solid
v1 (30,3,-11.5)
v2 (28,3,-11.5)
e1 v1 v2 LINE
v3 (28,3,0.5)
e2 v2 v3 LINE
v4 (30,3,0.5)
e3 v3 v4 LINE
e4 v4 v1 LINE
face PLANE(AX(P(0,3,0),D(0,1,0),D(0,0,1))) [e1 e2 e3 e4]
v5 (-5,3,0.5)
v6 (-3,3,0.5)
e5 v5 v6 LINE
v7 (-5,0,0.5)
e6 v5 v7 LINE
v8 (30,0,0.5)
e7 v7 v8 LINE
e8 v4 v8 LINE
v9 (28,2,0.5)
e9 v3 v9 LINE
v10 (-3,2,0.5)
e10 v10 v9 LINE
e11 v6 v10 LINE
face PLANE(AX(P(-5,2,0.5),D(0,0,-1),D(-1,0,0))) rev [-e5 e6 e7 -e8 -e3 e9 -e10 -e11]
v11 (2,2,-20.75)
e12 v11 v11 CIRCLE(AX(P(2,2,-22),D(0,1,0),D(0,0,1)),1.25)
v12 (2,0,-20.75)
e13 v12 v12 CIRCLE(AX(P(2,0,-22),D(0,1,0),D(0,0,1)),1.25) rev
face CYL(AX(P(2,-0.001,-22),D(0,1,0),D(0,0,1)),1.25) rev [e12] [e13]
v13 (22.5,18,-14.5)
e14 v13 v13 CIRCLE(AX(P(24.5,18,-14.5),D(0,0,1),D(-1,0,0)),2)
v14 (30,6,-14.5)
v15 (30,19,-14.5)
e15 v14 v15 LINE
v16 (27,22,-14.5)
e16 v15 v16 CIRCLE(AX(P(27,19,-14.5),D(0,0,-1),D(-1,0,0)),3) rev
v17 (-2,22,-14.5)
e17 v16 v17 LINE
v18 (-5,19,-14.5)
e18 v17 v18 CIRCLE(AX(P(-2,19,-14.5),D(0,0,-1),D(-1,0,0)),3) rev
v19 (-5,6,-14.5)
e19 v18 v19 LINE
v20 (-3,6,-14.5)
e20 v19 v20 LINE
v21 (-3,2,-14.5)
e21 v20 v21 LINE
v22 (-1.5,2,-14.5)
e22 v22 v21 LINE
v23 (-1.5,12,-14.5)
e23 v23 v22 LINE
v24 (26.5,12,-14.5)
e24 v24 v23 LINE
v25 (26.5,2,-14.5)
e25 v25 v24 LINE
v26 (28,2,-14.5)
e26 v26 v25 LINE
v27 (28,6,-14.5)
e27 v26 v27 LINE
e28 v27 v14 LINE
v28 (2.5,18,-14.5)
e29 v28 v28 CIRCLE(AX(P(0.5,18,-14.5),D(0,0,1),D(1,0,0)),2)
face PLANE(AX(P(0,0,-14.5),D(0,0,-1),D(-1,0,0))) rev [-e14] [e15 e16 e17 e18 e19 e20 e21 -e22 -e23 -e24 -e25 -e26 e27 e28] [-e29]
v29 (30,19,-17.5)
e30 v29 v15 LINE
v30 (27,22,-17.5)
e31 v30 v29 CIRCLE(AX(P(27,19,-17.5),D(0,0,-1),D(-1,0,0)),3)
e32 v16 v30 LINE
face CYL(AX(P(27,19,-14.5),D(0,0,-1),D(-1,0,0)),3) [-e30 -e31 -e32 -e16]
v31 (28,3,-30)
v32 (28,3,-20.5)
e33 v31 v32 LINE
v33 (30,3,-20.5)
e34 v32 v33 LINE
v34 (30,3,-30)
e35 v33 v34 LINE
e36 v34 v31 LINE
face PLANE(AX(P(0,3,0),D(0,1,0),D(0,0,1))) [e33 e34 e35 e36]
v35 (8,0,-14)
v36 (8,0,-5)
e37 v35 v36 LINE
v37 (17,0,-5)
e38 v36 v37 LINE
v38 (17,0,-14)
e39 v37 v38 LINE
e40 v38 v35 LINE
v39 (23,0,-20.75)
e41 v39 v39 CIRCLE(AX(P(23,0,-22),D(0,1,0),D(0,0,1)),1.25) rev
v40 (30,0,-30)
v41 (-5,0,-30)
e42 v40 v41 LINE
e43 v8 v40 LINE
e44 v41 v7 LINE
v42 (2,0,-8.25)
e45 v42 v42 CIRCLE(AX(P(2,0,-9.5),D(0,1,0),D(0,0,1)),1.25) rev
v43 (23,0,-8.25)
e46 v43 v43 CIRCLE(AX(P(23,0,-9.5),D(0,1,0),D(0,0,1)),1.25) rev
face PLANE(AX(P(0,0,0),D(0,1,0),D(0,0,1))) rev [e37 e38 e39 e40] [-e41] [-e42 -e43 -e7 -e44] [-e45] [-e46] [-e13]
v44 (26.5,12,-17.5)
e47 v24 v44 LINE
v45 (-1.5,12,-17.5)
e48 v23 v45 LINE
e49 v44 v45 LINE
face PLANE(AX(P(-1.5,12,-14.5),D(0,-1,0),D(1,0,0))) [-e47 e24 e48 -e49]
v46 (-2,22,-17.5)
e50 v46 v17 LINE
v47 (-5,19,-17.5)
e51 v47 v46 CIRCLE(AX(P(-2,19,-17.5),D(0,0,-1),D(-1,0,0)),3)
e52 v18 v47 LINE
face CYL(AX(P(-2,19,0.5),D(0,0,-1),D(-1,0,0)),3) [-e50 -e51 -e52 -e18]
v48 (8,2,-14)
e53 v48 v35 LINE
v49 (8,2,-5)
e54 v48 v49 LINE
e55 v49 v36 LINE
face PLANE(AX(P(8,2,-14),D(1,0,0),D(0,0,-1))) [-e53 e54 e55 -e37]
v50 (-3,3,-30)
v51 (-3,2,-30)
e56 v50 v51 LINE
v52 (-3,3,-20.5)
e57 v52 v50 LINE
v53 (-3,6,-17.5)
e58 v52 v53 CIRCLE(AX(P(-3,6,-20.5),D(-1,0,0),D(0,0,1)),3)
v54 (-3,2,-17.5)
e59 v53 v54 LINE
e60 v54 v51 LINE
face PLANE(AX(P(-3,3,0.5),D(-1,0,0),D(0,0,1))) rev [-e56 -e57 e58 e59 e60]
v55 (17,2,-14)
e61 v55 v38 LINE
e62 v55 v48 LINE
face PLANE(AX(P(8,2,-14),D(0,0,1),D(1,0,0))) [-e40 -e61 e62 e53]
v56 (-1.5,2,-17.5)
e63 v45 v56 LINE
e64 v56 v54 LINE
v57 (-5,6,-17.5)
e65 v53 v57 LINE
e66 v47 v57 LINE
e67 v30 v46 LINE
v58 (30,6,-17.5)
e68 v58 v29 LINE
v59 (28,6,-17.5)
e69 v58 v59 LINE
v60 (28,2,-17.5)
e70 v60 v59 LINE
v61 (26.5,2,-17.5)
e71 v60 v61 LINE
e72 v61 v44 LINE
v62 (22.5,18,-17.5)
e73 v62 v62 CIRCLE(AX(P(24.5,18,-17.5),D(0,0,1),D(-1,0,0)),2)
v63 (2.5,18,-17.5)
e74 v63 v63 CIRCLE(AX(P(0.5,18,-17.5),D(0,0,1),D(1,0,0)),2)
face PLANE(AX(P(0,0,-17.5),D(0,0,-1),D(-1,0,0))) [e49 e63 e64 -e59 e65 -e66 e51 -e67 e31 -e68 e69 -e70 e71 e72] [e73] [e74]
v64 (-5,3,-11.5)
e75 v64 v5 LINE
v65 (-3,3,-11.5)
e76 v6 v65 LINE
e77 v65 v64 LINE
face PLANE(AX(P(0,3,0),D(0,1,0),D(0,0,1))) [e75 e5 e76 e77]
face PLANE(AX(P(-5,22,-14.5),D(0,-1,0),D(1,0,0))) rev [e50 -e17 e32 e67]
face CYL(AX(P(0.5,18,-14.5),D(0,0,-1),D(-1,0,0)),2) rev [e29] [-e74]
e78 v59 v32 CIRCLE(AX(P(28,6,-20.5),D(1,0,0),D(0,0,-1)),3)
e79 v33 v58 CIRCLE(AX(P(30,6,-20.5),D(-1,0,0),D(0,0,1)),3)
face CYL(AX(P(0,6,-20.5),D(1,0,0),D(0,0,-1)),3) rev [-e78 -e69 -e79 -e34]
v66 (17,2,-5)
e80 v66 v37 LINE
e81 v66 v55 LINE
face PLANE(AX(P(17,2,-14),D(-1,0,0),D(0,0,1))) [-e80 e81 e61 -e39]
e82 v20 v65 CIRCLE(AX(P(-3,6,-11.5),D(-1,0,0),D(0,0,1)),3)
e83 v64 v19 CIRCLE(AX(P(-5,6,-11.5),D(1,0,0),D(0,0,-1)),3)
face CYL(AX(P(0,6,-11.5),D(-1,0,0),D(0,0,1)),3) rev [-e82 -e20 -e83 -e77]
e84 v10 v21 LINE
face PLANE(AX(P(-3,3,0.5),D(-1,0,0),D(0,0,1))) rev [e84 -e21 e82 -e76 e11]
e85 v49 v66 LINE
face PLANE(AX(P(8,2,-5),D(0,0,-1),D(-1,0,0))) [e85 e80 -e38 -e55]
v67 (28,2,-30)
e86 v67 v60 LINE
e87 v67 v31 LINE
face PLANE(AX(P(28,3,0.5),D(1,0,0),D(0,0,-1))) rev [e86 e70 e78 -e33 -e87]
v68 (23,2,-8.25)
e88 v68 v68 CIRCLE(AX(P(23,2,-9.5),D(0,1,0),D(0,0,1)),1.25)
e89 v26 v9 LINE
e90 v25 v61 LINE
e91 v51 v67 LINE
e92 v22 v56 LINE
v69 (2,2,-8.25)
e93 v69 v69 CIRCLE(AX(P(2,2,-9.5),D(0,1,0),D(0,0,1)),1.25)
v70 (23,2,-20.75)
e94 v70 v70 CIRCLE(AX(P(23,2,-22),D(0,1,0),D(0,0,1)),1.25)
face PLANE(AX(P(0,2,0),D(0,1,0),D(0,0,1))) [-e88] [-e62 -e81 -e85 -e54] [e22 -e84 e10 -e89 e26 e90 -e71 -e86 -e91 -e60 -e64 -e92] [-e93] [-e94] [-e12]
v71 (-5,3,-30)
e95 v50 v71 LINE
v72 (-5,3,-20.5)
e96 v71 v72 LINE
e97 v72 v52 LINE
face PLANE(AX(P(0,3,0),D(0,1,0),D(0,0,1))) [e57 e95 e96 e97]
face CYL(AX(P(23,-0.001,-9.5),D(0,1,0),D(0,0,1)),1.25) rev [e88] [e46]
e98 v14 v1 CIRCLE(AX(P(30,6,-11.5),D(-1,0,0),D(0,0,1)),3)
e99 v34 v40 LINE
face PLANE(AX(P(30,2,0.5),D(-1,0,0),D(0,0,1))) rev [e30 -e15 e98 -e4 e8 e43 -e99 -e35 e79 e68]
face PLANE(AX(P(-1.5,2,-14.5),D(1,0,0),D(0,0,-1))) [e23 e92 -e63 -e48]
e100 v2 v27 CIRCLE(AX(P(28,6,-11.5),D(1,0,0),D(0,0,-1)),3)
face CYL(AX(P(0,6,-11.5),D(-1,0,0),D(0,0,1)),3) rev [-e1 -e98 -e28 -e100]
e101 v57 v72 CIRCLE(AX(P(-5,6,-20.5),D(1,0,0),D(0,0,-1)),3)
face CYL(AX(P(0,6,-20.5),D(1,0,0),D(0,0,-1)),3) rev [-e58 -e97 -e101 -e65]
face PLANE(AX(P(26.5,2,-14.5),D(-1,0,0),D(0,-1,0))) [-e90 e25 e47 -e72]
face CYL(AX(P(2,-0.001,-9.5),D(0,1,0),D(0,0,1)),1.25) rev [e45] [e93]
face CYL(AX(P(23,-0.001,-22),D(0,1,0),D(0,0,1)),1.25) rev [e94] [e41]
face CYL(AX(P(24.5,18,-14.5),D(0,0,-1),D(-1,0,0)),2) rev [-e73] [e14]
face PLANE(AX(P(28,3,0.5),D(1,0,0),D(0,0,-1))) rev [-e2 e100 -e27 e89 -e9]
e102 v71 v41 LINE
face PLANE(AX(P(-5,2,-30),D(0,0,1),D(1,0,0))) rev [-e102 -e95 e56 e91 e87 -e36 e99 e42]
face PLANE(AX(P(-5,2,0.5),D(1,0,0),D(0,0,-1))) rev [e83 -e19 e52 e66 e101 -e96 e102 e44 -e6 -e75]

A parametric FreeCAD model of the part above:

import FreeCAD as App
import Part
import Sketcher

V = App.Vector


def edges_at(feature, points):
    """Names of the edges that pass closest to the given points."""
    edges = feature.Shape.Edges
    near = lambda p: min(range(len(edges)), key=lambda i: edges[i].distToShape(Part.Vertex(*p))[0])
    return sorted({f"Edge{near(p) + 1}" for p in points})


def add_polygon(sketch, points):
    """Adds a closed chain of lines whose ends are joined by coincident constraints."""
    first, n = sketch.GeometryCount, len(points)
    for a, b in zip(points, points[1:] + points[:1]):
        sketch.addGeometry(Part.LineSegment(App.Vector(*a, 0), App.Vector(*b, 0)), False)
    for i in range(n):
        sketch.addConstraint(Sketcher.Constraint("Coincident", first + i, 2, first + (i + 1) % n, 1))

doc = App.newDocument("Part")
body = doc.addObject("PartDesign::Body", "Body")

# Sketch on XZ plane
sketch1 = body.newObject("Sketcher::SketchObject", "Sketch")
sketch1.AttachmentSupport = (doc.getObject("XZ_Plane"), [""])
sketch1.MapMode = "FlatFace"
add_polygon(sketch1, [(-5, -30), (-5, 0.5), (30, 0.5), (30, -30)])  # lines 0-3
add_polygon(sketch1, [(17, -5), (8, -5), (8, -14), (17, -14)])  # lines 4-7
sketch1.addConstraint([
    Sketcher.Constraint("Vertical", 0),
    Sketcher.Constraint("Horizontal", 1),
    Sketcher.Constraint("Vertical", 2),
    Sketcher.Constraint("Horizontal", 3),
    Sketcher.Constraint("Horizontal", 4),
    Sketcher.Constraint("Vertical", 5),
    Sketcher.Constraint("Horizontal", 6),
    Sketcher.Constraint("Vertical", 7),
    Sketcher.Constraint("Equal", 6, 5),
    Sketcher.Constraint("DistanceX", 1, 1, 1, 2, 35.0),
    Sketcher.Constraint("DistanceX", 4, 2, 4, 1, 9.0),
    Sketcher.Constraint("DistanceY", 0, 1, 0, 2, 30.5),
    Sketcher.Constraint("DistanceX", 0, 2, -1, 1, 5.0),
    Sketcher.Constraint("DistanceY", 2, 2, -1, 1, 30.0),
    Sketcher.Constraint("DistanceX", -1, 1, 4, 2, 8.0),
    Sketcher.Constraint("DistanceY", 4, 2, -1, 1, 5.0),
])
pad1 = body.newObject("PartDesign::Pad", "Pad")
pad1.Profile = sketch1
pad1.Length = 2
pad1.Reversed = True

# Sketch on XZ plane
sketch2 = body.newObject("Sketcher::SketchObject", "Sketch001")
sketch2.AttachmentSupport = (doc.getObject("XZ_Plane"), [""])
sketch2.MapMode = "FlatFace"
sketch2.AttachmentOffset = App.Placement(V(0, 0, -2), App.Rotation())
add_polygon(sketch2, [(28, -28), (28, 0.5), (30, 0.5), (30, -30), (-5, -30), (-5, 0.5), (-3, 0.5), (-3, -28)])  # lines 0-7
sketch2.addConstraint([
    Sketcher.Constraint("Vertical", 0),
    Sketcher.Constraint("Horizontal", 1),
    Sketcher.Constraint("Vertical", 2),
    Sketcher.Constraint("Horizontal", 3),
    Sketcher.Constraint("Vertical", 4),
    Sketcher.Constraint("Horizontal", 5),
    Sketcher.Constraint("Vertical", 6),
    Sketcher.Constraint("Horizontal", 7),
    Sketcher.Constraint("Horizontal", 1, 2, 4, 2),
    Sketcher.Constraint("Equal", 1, 5),
    Sketcher.Constraint("DistanceX", 1, 1, 1, 2, 2.0),
    Sketcher.Constraint("DistanceX", 3, 2, 3, 1, 35.0),
    Sketcher.Constraint("DistanceY", 0, 1, 0, 2, 28.5),
    Sketcher.Constraint("DistanceY", 2, 2, 2, 1, 30.5),
    Sketcher.Constraint("DistanceX", -1, 1, 0, 2, 28.0),
    Sketcher.Constraint("DistanceY", 2, 2, -1, 1, 30.0),
])
pad2 = body.newObject("PartDesign::Pad", "Pad001")
pad2.Profile = sketch2
pad2.Length = 1
pad2.Reversed = True

# Sketch on XZ plane
sketch3 = body.newObject("Sketcher::SketchObject", "Sketch002")
sketch3.AttachmentSupport = (doc.getObject("XZ_Plane"), [""])
sketch3.MapMode = "FlatFace"
sketch3.AttachmentOffset = App.Placement(V(0, 0, -2), App.Rotation())
sketch3.addGeometry(Part.Circle(V(2, -22, 0), V(0, 0, 1), 1.25), False)
sketch3.addConstraint([
    Sketcher.Constraint("Diameter", 0, 2.5),
    Sketcher.Constraint("DistanceX", -1, 1, 0, 3, 2.0),
    Sketcher.Constraint("DistanceY", 0, 3, -1, 1, 22.0),
])
pocket1 = body.newObject("PartDesign::Pocket", "Pocket")
pocket1.Profile = sketch3
pocket1.Type = "UpToFirst"
pocket1.Reversed = True

# Sketch on XZ plane
sketch4 = body.newObject("Sketcher::SketchObject", "Sketch003")
sketch4.AttachmentSupport = (doc.getObject("XZ_Plane"), [""])
sketch4.MapMode = "FlatFace"
sketch4.AttachmentOffset = App.Placement(V(0, 0, -2), App.Rotation())
sketch4.addGeometry(Part.Circle(V(2, -9.5, 0), V(0, 0, 1), 1.25), False)
sketch4.addConstraint([
    Sketcher.Constraint("Diameter", 0, 2.5),
    Sketcher.Constraint("DistanceX", -1, 1, 0, 3, 2.0),
    Sketcher.Constraint("DistanceY", 0, 3, -1, 1, 9.5),
])
pocket2 = body.newObject("PartDesign::Pocket", "Pocket001")
pocket2.Profile = sketch4
pocket2.Type = "UpToFirst"
pocket2.Reversed = True

# Sketch on XZ plane
sketch5 = body.newObject("Sketcher::SketchObject", "Sketch004")
sketch5.AttachmentSupport = (doc.getObject("XZ_Plane"), [""])
sketch5.MapMode = "FlatFace"
sketch5.AttachmentOffset = App.Placement(V(0, 0, -2), App.Rotation())
sketch5.addGeometry(Part.Circle(V(23, -9.5, 0), V(0, 0, 1), 1.25), False)
sketch5.addConstraint([
    Sketcher.Constraint("Diameter", 0, 2.5),
    Sketcher.Constraint("DistanceX", -1, 1, 0, 3, 23.0),
    Sketcher.Constraint("DistanceY", 0, 3, -1, 1, 9.5),
])
pocket3 = body.newObject("PartDesign::Pocket", "Pocket002")
pocket3.Profile = sketch5
pocket3.Type = "UpToFirst"
pocket3.Reversed = True

# Sketch on XZ plane
sketch6 = body.newObject("Sketcher::SketchObject", "Sketch005")
sketch6.AttachmentSupport = (doc.getObject("XZ_Plane"), [""])
sketch6.MapMode = "FlatFace"
sketch6.AttachmentOffset = App.Placement(V(0, 0, -2), App.Rotation())
sketch6.addGeometry(Part.Circle(V(23, -22, 0), V(0, 0, 1), 1.25), False)
sketch6.addConstraint([
    Sketcher.Constraint("Diameter", 0, 2.5),
    Sketcher.Constraint("DistanceX", -1, 1, 0, 3, 23.0),
    Sketcher.Constraint("DistanceY", 0, 3, -1, 1, 22.0),
])
pocket4 = body.newObject("PartDesign::Pocket", "Pocket003")
pocket4.Profile = sketch6
pocket4.Type = "UpToFirst"
pocket4.Reversed = True

# Sketch on XY plane
sketch7 = body.newObject("Sketcher::SketchObject", "Sketch006")
sketch7.AttachmentSupport = (doc.getObject("XY_Plane"), [""])
sketch7.MapMode = "FlatFace"
sketch7.AttachmentOffset = App.Placement(V(0, 0, -17.5), App.Rotation())
add_polygon(sketch7, [(-5, 22), (-5, 0), (30, 0), (30, 22)])  # lines 0-3
add_polygon(sketch7, [(26.5, 2), (-1.5, 2), (-1.5, 12), (26.5, 12)])  # lines 4-7
sketch7.addGeometry(Part.Circle(V(0.5, 18, 0), V(0, 0, 1), 2), False)  # 8
sketch7.addGeometry(Part.Circle(V(24.5, 18, 0), V(0, 0, 1), 2), False)  # 9
sketch7.addConstraint([
    Sketcher.Constraint("Vertical", 0),
    Sketcher.Constraint("Horizontal", 1),
    Sketcher.Constraint("Vertical", 2),
    Sketcher.Constraint("Horizontal", 3),
    Sketcher.Constraint("Horizontal", 4),
    Sketcher.Constraint("Vertical", 5),
    Sketcher.Constraint("Horizontal", 6),
    Sketcher.Constraint("Vertical", 7),
    Sketcher.Constraint("Equal", 8, 9),
    Sketcher.Constraint("PointOnObject", 0, 2, -1),
    Sketcher.Constraint("Horizontal", 8, 3, 9, 3),
    Sketcher.Constraint("Diameter", 8, 4.0),
    Sketcher.Constraint("DistanceX", 1, 1, 1, 2, 35.0),
    Sketcher.Constraint("DistanceX", 4, 2, 4, 1, 28.0),
    Sketcher.Constraint("DistanceY", 0, 2, 0, 1, 22.0),
    Sketcher.Constraint("DistanceY", 5, 1, 5, 2, 10.0),
    Sketcher.Constraint("DistanceY", -1, 1, 8, 3, 18.0),
    Sketcher.Constraint("DistanceX", 0, 2, -1, 1, 5.0),
    Sketcher.Constraint("DistanceY", -1, 1, 4, 2, 2.0),
    Sketcher.Constraint("DistanceX", 8, 3, 9, 3, 24.0),
    Sketcher.Constraint("DistanceX", 4, 2, 8, 3, 2.0),
    Sketcher.Constraint("DistanceX", -1, 1, 8, 3, 0.5),
])
pad3 = body.newObject("PartDesign::Pad", "Pad002")
pad3.Profile = sketch7
pad3.Length = 3

# Sketch on XY plane
sketch8 = body.newObject("Sketcher::SketchObject", "Sketch007")
sketch8.AttachmentSupport = (doc.getObject("XY_Plane"), [""])
sketch8.MapMode = "FlatFace"
sketch8.AttachmentOffset = App.Placement(V(0, 0, -28), App.Rotation())
add_polygon(sketch8, [(-3, 3), (-3, 2), (28, 2), (28, 3)])  # lines 0-3
sketch8.addConstraint([
    Sketcher.Constraint("Vertical", 0),
    Sketcher.Constraint("Horizontal", 1),
    Sketcher.Constraint("Vertical", 2),
    Sketcher.Constraint("Horizontal", 3),
    Sketcher.Constraint("DistanceX", 1, 1, 1, 2, 31.0),
    Sketcher.Constraint("DistanceY", 0, 2, 0, 1, 1.0),
    Sketcher.Constraint("DistanceX", 0, 2, -1, 1, 3.0),
    Sketcher.Constraint("DistanceY", -1, 1, 0, 2, 2.0),
])
pocket5 = body.newObject("PartDesign::Pocket", "Pocket004")
pocket5.Profile = sketch8
pocket5.Type = "ThroughAll"
doc.recompute()

fillet = body.newObject("PartDesign::Fillet", "Fillet")
fillet.Base = (pocket5, edges_at(pocket5, [
    (-4, 3, -17.5),
    (29, 3, -17.5),
    (-4, 3, -14.5),
    (29, 3, -14.5),
    (-5, 22, -16),
    (30, 22, -16),
]))
fillet.Radius = 3

doc.recompute()
